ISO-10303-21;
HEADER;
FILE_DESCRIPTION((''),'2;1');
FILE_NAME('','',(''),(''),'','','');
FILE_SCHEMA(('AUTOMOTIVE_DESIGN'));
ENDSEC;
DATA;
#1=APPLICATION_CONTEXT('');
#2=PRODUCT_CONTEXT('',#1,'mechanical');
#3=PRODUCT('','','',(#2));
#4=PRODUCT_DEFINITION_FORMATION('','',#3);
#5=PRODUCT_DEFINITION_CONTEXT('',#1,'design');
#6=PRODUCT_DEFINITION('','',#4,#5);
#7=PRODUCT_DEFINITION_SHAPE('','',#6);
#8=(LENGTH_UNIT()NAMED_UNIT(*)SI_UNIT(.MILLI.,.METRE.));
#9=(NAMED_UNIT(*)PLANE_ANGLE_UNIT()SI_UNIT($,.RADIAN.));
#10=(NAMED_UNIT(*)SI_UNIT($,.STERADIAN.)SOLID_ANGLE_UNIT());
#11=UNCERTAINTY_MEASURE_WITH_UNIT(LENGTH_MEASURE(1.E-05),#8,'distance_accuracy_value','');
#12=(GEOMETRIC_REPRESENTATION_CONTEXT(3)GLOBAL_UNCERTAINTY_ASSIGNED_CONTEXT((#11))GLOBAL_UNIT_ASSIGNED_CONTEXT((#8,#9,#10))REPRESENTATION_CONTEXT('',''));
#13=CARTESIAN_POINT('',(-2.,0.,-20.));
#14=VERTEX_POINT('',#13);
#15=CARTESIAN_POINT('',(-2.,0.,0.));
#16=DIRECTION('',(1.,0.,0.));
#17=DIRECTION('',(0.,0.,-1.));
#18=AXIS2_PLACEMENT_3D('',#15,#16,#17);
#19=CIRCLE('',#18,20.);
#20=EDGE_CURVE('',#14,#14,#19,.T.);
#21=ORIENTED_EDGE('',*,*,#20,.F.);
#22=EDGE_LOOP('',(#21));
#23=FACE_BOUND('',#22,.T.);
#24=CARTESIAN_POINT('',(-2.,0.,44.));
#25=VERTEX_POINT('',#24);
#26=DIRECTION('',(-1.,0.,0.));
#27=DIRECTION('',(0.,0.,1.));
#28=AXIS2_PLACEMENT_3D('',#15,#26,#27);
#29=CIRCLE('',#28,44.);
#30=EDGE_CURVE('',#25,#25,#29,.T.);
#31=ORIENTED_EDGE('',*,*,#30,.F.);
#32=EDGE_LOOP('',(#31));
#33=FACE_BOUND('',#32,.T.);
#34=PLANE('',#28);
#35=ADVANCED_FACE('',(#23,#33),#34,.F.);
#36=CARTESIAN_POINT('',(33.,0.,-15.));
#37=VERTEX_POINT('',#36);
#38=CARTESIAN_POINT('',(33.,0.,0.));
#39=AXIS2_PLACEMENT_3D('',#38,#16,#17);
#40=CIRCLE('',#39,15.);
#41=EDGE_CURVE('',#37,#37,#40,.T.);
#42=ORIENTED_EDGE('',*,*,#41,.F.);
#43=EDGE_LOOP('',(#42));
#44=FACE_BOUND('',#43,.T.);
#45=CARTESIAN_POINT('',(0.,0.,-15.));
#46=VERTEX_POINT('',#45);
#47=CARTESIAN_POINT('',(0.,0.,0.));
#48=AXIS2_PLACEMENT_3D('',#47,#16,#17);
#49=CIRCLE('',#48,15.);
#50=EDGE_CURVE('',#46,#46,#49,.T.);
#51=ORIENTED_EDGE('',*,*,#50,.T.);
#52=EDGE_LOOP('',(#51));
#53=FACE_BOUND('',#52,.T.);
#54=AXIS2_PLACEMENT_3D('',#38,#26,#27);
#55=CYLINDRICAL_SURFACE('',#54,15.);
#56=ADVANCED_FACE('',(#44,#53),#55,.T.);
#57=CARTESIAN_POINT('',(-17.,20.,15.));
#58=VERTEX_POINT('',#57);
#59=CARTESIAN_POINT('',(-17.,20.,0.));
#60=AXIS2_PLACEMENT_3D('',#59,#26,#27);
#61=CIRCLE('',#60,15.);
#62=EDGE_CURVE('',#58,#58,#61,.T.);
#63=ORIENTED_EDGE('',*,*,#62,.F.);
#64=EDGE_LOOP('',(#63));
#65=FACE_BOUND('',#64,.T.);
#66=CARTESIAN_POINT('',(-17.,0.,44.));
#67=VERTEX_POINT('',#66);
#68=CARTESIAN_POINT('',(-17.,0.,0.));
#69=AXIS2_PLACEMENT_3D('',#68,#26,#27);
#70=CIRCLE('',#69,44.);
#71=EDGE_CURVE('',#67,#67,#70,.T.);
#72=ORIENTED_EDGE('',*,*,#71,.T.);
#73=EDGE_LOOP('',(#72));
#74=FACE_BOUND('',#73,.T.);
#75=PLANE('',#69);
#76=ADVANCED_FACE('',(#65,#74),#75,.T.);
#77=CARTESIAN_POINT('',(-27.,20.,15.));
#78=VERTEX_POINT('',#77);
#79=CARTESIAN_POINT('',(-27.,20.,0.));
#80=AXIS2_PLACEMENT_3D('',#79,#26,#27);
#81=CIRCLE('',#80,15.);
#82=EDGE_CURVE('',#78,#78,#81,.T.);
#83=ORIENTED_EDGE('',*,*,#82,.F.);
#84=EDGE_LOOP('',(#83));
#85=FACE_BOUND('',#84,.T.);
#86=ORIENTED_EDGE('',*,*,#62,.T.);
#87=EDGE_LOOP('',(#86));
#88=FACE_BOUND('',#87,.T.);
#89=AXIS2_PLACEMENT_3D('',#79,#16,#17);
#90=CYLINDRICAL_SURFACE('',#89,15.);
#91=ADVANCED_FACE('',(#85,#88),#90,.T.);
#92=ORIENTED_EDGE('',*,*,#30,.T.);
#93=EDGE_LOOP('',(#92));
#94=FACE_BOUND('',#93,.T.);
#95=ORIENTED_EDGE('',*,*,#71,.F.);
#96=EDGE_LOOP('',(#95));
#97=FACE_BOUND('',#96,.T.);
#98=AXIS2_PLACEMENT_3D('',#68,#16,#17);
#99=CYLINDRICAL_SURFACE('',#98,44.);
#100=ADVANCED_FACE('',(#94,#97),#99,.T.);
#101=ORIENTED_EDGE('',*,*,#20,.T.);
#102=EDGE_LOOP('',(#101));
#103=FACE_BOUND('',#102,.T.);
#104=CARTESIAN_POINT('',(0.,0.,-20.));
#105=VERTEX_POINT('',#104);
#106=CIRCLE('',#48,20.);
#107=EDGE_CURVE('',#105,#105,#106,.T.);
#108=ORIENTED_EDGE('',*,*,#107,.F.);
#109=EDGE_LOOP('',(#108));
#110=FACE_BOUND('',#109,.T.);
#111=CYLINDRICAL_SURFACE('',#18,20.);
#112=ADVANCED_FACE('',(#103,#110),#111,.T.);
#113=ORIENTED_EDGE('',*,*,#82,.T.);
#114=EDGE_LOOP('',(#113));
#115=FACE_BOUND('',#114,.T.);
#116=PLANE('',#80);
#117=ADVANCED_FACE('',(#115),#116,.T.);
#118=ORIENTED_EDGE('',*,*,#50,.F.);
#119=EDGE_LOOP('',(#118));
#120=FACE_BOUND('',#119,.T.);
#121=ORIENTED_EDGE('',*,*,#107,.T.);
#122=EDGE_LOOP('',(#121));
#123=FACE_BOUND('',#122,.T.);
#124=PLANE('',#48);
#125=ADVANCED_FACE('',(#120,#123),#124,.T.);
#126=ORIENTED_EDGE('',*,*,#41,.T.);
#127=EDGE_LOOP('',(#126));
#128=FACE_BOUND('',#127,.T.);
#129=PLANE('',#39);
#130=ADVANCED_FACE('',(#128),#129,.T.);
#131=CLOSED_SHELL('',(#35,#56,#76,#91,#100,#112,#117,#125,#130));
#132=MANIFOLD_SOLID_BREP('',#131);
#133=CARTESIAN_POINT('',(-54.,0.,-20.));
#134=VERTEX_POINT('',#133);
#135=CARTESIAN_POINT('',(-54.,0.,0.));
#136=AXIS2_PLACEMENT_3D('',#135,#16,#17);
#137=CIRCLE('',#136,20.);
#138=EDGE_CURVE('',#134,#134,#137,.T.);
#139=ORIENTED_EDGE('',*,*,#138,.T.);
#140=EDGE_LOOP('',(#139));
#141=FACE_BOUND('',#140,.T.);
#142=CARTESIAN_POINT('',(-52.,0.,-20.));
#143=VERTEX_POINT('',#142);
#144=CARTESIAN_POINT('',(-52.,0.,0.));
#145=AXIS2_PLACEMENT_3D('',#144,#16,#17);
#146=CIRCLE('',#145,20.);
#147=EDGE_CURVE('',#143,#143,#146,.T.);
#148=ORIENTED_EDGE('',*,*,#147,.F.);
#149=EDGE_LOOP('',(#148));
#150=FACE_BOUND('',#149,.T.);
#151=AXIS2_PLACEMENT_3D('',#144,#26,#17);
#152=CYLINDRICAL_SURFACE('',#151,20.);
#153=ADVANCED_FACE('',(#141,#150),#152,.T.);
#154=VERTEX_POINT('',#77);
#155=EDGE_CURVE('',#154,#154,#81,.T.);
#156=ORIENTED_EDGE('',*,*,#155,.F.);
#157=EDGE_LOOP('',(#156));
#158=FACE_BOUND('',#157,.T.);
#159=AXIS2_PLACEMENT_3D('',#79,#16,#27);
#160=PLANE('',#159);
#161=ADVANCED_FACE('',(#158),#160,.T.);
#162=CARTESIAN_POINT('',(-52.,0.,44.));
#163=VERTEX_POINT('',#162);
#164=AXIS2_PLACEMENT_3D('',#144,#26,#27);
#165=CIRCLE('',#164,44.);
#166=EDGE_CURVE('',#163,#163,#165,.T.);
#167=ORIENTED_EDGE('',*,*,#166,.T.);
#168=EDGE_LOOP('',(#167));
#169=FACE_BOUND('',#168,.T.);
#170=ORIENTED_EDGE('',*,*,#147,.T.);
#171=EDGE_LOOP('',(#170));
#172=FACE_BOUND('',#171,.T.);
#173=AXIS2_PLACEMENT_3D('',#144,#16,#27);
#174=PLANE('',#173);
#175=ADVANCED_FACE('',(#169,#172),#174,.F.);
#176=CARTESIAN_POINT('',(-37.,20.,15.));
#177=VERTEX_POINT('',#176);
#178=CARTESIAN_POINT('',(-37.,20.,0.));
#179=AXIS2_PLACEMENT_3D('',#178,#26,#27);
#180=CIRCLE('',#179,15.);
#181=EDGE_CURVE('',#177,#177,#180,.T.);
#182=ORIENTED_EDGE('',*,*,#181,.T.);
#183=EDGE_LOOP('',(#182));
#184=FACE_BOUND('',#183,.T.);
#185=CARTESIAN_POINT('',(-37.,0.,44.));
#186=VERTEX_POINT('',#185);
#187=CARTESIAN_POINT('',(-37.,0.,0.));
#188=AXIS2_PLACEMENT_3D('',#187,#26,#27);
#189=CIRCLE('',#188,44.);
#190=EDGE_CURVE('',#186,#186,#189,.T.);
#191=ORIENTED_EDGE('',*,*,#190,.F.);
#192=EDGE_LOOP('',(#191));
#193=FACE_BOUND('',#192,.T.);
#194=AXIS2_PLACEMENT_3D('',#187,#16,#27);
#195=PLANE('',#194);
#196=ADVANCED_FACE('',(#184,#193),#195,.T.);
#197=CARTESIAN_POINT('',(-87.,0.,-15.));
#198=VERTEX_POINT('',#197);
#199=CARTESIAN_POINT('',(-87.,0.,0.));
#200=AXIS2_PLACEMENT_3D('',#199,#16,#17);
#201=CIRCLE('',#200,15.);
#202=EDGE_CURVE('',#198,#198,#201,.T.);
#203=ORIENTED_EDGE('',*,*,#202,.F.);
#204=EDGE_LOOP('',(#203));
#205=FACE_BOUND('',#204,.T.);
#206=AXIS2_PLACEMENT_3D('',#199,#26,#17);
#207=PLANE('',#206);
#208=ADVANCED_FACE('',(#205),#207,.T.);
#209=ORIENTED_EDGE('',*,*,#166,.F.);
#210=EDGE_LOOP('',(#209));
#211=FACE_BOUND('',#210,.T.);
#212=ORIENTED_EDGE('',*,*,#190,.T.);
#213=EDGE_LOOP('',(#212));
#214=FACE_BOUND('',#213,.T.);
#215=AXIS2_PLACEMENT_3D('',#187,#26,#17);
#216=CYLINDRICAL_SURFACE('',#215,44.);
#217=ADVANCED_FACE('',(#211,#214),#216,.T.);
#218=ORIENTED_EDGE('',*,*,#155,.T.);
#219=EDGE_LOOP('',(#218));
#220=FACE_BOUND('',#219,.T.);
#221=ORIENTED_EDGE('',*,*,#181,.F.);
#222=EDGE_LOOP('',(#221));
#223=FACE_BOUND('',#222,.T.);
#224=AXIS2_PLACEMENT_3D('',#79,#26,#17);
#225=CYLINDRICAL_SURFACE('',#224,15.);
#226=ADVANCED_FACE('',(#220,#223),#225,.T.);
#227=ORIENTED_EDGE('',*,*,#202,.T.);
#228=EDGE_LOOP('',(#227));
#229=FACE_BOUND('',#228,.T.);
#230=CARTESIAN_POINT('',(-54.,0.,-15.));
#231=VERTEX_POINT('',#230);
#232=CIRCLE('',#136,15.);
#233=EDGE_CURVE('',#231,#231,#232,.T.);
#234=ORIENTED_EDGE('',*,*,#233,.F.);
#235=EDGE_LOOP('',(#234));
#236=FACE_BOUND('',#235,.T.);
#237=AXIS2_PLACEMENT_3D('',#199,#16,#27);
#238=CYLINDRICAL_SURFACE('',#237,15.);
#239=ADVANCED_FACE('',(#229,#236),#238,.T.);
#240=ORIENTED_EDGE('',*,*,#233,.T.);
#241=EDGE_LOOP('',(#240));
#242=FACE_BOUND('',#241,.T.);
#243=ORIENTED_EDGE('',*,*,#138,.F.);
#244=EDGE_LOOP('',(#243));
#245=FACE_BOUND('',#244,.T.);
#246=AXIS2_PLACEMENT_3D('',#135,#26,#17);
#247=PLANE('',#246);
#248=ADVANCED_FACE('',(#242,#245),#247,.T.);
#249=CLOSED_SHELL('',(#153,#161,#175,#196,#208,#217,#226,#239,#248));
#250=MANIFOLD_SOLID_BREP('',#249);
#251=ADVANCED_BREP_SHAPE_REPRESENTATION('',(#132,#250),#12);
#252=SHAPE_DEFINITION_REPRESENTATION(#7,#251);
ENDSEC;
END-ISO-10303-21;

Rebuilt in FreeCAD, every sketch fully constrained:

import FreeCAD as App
import Part
import Sketcher
from FreeCAD import Vector
Q = App.Units.Quantity

doc = App.newDocument("Part")
body = doc.addObject("PartDesign::Body", "Body")

# Sketch on YZ plane
sketch1 = doc.addObject("Sketcher::SketchObject", "Sketch")
body.addObject(sketch1)
sketch1.AttachmentSupport = (doc.YZ_Plane, [""])
sketch1.MapMode = "FlatFace"
sketch1.addGeometry(Part.Circle(Vector(0, 0, 0), Vector(0, 0, 1), 15), False)
sketch1.addConstraint(Sketcher.Constraint("Coincident", 0, 3, -1, 1))
sketch1.addConstraint(Sketcher.Constraint("Diameter", 0, Q("30 mm")))
pad1 = doc.addObject("PartDesign::Pad", "Pad")
body.addObject(pad1)
pad1.Profile = sketch1
pad1.Length = 33

# Sketch on YZ plane
sketch2 = doc.addObject("Sketcher::SketchObject", "Sketch001")
body.addObject(sketch2)
sketch2.AttachmentSupport = (doc.YZ_Plane, [""])
sketch2.MapMode = "FlatFace"
sketch2.addGeometry(Part.Circle(Vector(0, 0, 0), Vector(0, 0, 1), 20), False)
sketch2.addConstraint(Sketcher.Constraint("Coincident", 0, 3, -1, 1))
sketch2.addConstraint(Sketcher.Constraint("Diameter", 0, Q("40 mm")))
pad2 = doc.addObject("PartDesign::Pad", "Pad001")
body.addObject(pad2)
pad2.Profile = sketch2
pad2.Length = 2
pad2.Reversed = True

# Sketch on YZ plane
sketch3 = doc.addObject("Sketcher::SketchObject", "Sketch002")
body.addObject(sketch3)
sketch3.AttachmentSupport = (doc.YZ_Plane, [""])
sketch3.MapMode = "FlatFace"
sketch3.AttachmentOffset = App.Placement(Vector(0, 0, -2), App.Rotation())
sketch3.addGeometry(Part.Circle(Vector(0, 0, 0), Vector(0, 0, 1), 44), False)
sketch3.addConstraint(Sketcher.Constraint("Coincident", 0, 3, -1, 1))
sketch3.addConstraint(Sketcher.Constraint("Diameter", 0, Q("88 mm")))
pad3 = doc.addObject("PartDesign::Pad", "Pad002")
body.addObject(pad3)
pad3.Profile = sketch3
pad3.Length = 15
pad3.Reversed = True

# Sketch on YZ plane
sketch4 = doc.addObject("Sketcher::SketchObject", "Sketch003")
body.addObject(sketch4)
sketch4.AttachmentSupport = (doc.YZ_Plane, [""])
sketch4.MapMode = "FlatFace"
sketch4.AttachmentOffset = App.Placement(Vector(0, 0, -17), App.Rotation())
sketch4.addGeometry(Part.Circle(Vector(20, 0, 0), Vector(0, 0, 1), 15), False)
sketch4.addConstraint(Sketcher.Constraint("PointOnObject", 0, 3, -1))
sketch4.addConstraint(Sketcher.Constraint("Diameter", 0, Q("30 mm")))
sketch4.addConstraint(Sketcher.Constraint("DistanceX", -1, 1, 0, 3, Q("20 mm")))
pad4 = doc.addObject("PartDesign::Pad", "Pad003")
body.addObject(pad4)
pad4.Profile = sketch4
pad4.Length = 10
pad4.Reversed = True
body2 = doc.addObject("PartDesign::Body", "Body001")
doc.recompute()

mirroring = doc.addObject("Part::Mirroring", "Mirroring")
mirroring.Source = body
mirroring.Base = Vector(-27, 20, 0)
mirroring.Normal = Vector(-1, 0, 0)
body2.BaseFeature = mirroring
doc.recompute()
mirroring.Visibility = False

doc.recompute()
